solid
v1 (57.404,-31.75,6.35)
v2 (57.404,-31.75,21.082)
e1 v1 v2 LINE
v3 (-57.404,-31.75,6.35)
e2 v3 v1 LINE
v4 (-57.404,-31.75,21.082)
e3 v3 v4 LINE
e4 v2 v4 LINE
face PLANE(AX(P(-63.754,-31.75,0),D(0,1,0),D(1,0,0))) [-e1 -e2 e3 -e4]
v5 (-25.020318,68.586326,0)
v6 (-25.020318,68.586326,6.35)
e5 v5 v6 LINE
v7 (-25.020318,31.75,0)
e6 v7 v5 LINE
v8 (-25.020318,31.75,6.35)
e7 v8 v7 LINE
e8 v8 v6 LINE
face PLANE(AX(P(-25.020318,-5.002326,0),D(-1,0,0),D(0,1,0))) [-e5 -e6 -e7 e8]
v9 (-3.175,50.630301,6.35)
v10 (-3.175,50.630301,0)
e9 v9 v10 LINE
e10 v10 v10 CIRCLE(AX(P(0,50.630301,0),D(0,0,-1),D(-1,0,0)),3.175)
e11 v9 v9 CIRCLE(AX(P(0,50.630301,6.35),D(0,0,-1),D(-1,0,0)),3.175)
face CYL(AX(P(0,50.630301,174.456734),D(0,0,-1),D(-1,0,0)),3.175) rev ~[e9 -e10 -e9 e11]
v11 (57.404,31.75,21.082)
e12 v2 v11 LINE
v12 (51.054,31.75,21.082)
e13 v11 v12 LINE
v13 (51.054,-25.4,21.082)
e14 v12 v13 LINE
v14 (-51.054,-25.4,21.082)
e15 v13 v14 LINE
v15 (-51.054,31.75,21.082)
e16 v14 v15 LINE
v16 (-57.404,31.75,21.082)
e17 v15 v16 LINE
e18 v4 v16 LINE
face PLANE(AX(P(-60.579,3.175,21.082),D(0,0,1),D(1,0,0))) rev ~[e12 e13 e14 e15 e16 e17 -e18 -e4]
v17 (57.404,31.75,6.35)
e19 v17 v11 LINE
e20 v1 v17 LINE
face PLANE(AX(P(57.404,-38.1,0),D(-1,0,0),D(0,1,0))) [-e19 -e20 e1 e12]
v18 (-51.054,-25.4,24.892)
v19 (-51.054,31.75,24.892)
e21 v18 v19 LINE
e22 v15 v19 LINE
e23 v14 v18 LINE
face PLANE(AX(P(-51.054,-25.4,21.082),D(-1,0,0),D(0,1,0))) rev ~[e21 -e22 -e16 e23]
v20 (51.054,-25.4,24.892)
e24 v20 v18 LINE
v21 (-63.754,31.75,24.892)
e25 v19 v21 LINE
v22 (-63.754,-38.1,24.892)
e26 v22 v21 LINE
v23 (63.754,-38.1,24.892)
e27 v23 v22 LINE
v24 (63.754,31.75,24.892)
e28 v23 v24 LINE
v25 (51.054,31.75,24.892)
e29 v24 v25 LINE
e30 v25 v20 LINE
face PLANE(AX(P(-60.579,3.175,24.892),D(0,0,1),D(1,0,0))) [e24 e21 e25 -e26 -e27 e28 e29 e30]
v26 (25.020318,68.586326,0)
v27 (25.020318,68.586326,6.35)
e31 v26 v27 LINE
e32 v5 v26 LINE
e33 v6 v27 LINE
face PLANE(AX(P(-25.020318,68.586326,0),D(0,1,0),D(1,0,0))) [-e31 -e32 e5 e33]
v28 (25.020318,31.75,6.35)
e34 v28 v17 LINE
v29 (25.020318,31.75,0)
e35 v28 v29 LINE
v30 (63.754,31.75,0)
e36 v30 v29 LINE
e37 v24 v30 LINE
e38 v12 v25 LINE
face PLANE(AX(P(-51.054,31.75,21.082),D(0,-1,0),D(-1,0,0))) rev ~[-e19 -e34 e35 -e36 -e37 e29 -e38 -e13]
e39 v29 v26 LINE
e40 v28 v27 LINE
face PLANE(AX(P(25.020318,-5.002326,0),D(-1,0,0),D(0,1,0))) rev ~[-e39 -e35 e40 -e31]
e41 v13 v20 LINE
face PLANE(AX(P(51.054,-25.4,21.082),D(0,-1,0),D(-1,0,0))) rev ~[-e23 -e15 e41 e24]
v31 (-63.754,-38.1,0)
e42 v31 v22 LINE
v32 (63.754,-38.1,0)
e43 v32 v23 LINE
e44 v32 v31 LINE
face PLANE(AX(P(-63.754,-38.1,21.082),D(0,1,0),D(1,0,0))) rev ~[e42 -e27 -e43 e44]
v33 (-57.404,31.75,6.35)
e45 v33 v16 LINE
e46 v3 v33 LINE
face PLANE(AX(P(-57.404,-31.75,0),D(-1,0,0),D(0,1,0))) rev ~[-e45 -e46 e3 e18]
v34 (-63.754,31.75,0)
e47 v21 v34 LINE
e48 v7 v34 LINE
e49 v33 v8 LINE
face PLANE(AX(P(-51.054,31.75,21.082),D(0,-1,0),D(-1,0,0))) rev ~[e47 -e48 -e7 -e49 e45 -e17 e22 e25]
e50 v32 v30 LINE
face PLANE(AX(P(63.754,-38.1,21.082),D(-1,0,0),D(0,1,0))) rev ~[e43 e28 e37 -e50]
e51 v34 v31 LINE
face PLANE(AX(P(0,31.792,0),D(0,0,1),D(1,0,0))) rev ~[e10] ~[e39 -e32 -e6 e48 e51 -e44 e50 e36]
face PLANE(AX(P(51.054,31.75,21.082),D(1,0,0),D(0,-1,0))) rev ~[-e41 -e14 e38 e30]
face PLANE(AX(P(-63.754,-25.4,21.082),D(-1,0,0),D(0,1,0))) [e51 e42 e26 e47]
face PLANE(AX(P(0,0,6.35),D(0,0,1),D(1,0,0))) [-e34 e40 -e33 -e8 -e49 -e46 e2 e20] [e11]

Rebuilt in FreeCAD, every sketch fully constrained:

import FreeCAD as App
import Part
import Sketcher
from FreeCAD import Vector
Q = App.Units.Quantity


def add_polygon(sketch, points):
    """Adds a closed chain of lines whose ends are joined by coincident constraints."""
    first, n = sketch.GeometryCount, len(points)
    for a, b in zip(points, points[1:] + points[:1]):
        sketch.addGeometry(Part.LineSegment(App.Vector(*a, 0), App.Vector(*b, 0)), False)
    for i in range(n):
        sketch.addConstraint(Sketcher.Constraint("Coincident", first + i, 2, first + (i + 1) % n, 1))

doc = App.newDocument("Part")
body = doc.addObject("PartDesign::Body", "Body")

sketch1 = doc.addObject("Sketcher::SketchObject", "Sketch")
body.addObject(sketch1)
sketch1.AttachmentSupport = (doc.XY_Plane, [""])
sketch1.MapMode = "FlatFace"
add_polygon(sketch1, [(-57, 32), (-57, -32), (57, -32), (57, 32)])
sketch1.addConstraint([
    Sketcher.Constraint("Vertical", 0),
    Sketcher.Constraint("Horizontal", 1),
    Sketcher.Constraint("Vertical", 2),
    Sketcher.Constraint("Horizontal", 3),
    Sketcher.Constraint("Symmetric", 0, 2, 2, 2, -1, 1),
    Sketcher.Constraint("DistanceY", 0, 2, 0, 1, Q("2.5 in")),
    Sketcher.Constraint("DistanceX", 1, 1, 1, 2, Q("4.52 in")),
])
pad1 = doc.addObject("PartDesign::Pad", "Pad")
body.addObject(pad1)
pad1.Profile = sketch1
pad1.Length = Q("0.25 in")

sketch2 = doc.addObject("Sketcher::SketchObject", "Sketch001")
body.addObject(sketch2)
sketch2.AttachmentSupport = (doc.XY_Plane, [""])
sketch2.MapMode = "FlatFace"
add_polygon(sketch2, [(-64, 32), (-64, -32), (-57, -32), (-57, 32)])
sketch2.addConstraint([
    Sketcher.Constraint("Vertical", 0),
    Sketcher.Constraint("Horizontal", 1),
    Sketcher.Constraint("Vertical", 2),
    Sketcher.Constraint("Horizontal", 3),
    Sketcher.Constraint("DistanceY", 0, 2, 0, 1, Q("2.5 in")),
    Sketcher.Constraint("DistanceX", 1, 1, 1, 2, Q("0.25 in")),
    Sketcher.Constraint("DistanceX", 0, 2, -1, 1, Q("2.51 in")),
    Sketcher.Constraint("DistanceY", 0, 2, -1, 1, Q("1.25 in")),
])
pad2 = doc.addObject("PartDesign::Pad", "Pad001")
body.addObject(pad2)
pad2.Profile = sketch2
pad2.Length = Q("0.83 in")

sketch3 = doc.addObject("Sketcher::SketchObject", "Sketch002")
body.addObject(sketch3)
sketch3.AttachmentSupport = (doc.XY_Plane, [""])
sketch3.MapMode = "FlatFace"
add_polygon(sketch3, [(-64, -32), (-64, -38), (57, -38), (57, -32)])
sketch3.addConstraint([
    Sketcher.Constraint("Vertical", 0),
    Sketcher.Constraint("Horizontal", 1),
    Sketcher.Constraint("Vertical", 2),
    Sketcher.Constraint("Horizontal", 3),
    Sketcher.Constraint("DistanceX", 1, 1, 1, 2, Q("4.77 in")),
    Sketcher.Constraint("DistanceY", 0, 2, 0, 1, Q("0.25 in")),
    Sketcher.Constraint("DistanceY", 0, 2, -1, 1, Q("1.5 in")),
    Sketcher.Constraint("DistanceX", 0, 2, -1, 1, Q("2.51 in")),
])
pad3 = doc.addObject("PartDesign::Pad", "Pad002")
body.addObject(pad3)
pad3.Profile = sketch3
pad3.Length = Q("0.83 in")

sketch4 = doc.addObject("Sketcher::SketchObject", "Sketch003")
body.addObject(sketch4)
sketch4.AttachmentSupport = (doc.XY_Plane, [""])
sketch4.MapMode = "FlatFace"
add_polygon(sketch4, [(57, 32), (57, -38), (64, -38), (64, 32)])
sketch4.addConstraint([
    Sketcher.Constraint("Vertical", 0),
    Sketcher.Constraint("Horizontal", 1),
    Sketcher.Constraint("Vertical", 2),
    Sketcher.Constraint("Horizontal", 3),
    Sketcher.Constraint("DistanceX", 1, 1, 1, 2, Q("0.25 in")),
    Sketcher.Constraint("DistanceY", 0, 2, 0, 1, Q("2.75 in")),
    Sketcher.Constraint("DistanceY", 0, 2, -1, 1, Q("1.5 in")),
    Sketcher.Constraint("DistanceX", -1, 1, 0, 2, Q("2.26 in")),
])
pad4 = doc.addObject("PartDesign::Pad", "Pad003")
body.addObject(pad4)
pad4.Profile = sketch4
pad4.Length = Q("0.83 in")

sketch5 = doc.addObject("Sketcher::SketchObject", "Sketch004")
body.addObject(sketch5)
sketch5.AttachmentSupport = (doc.XY_Plane, [""])
sketch5.MapMode = "FlatFace"
sketch5.AttachmentOffset = App.Placement(Vector(0, 0, 0.83 * 25.4), App.Rotation())
add_polygon(sketch5, [(51, 32), (51, -38), (64, -38), (64, 32)])
sketch5.addConstraint([
    Sketcher.Constraint("Vertical", 0),
    Sketcher.Constraint("Horizontal", 1),
    Sketcher.Constraint("Vertical", 2),
    Sketcher.Constraint("Horizontal", 3),
    Sketcher.Constraint("DistanceX", 1, 1, 1, 2, Q("0.5 in")),
    Sketcher.Constraint("DistanceY", 0, 2, 0, 1, Q("2.75 in")),
    Sketcher.Constraint("DistanceY", 0, 2, -1, 1, Q("1.5 in")),
    Sketcher.Constraint("DistanceX", -1, 1, 0, 2, Q("2.01 in")),
])
pad5 = doc.addObject("PartDesign::Pad", "Pad004")
body.addObject(pad5)
pad5.Profile = sketch5
pad5.Length = Q("0.15 in")

sketch6 = doc.addObject("Sketcher::SketchObject", "Sketch005")
body.addObject(sketch6)
sketch6.AttachmentSupport = (doc.XY_Plane, [""])
sketch6.MapMode = "FlatFace"
sketch6.AttachmentOffset = App.Placement(Vector(0, 0, 0.83 * 25.4), App.Rotation())
add_polygon(sketch6, [(-64, -25), (-64, -38), (51, -38), (51, -25)])
sketch6.addConstraint([
    Sketcher.Constraint("Vertical", 0),
    Sketcher.Constraint("Horizontal", 1),
    Sketcher.Constraint("Vertical", 2),
    Sketcher.Constraint("Horizontal", 3),
    Sketcher.Constraint("DistanceY", 0, 2, 0, 1, Q("0.5 in")),
    Sketcher.Constraint("DistanceY", 2, 2, -1, 1, Q("1 in")),
    Sketcher.Constraint("DistanceX", 1, 1, 1, 2, Q("4.52 in")),
    Sketcher.Constraint("DistanceX", 0, 2, -1, 1, Q("2.51 in")),
])
pad6 = doc.addObject("PartDesign::Pad", "Pad005")
body.addObject(pad6)
pad6.Profile = sketch6
pad6.Length = Q("0.15 in")

sketch7 = doc.addObject("Sketcher::SketchObject", "Sketch006")
body.addObject(sketch7)
sketch7.AttachmentSupport = (doc.XY_Plane, [""])
sketch7.MapMode = "FlatFace"
sketch7.AttachmentOffset = App.Placement(Vector(0, 0, 0.83 * 25.4), App.Rotation())
add_polygon(sketch7, [(-64, 32), (-64, -25), (-51, -25), (-51, 32)])
sketch7.addConstraint([
    Sketcher.Constraint("Vertical", 0),
    Sketcher.Constraint("Horizontal", 1),
    Sketcher.Constraint("Vertical", 2),
    Sketcher.Constraint("Horizontal", 3),
    Sketcher.Constraint("DistanceX", 1, 1, 1, 2, Q("0.5 in")),
    Sketcher.Constraint("DistanceY", 0, 2, -1, 1, Q("1 in")),
    Sketcher.Constraint("DistanceY", 0, 2, 0, 1, Q("2.25 in")),
    Sketcher.Constraint("DistanceX", 0, 2, -1, 1, Q("2.51 in")),
])
pad7 = doc.addObject("PartDesign::Pad", "Pad006")
body.addObject(pad7)
pad7.Profile = sketch7
pad7.Length = Q("0.15 in")

sketch8 = doc.addObject("Sketcher::SketchObject", "Sketch007")
body.addObject(sketch8)
sketch8.AttachmentSupport = (doc.XY_Plane, [""])
sketch8.MapMode = "FlatFace"
add_polygon(sketch8, [(-25, 69), (-25, -5), (25, -5), (25, 69)])
sketch8.addConstraint([
    Sketcher.Constraint("Vertical", 0),
    Sketcher.Constraint("Horizontal", 1),
    Sketcher.Constraint("Vertical", 2),
    Sketcher.Constraint("Horizontal", 3),
    Sketcher.Constraint("DistanceX", 1, 1, 1, 2, 50.040636),
    Sketcher.Constraint("DistanceY", 0, 2, 0, 1, 73.588653),
    Sketcher.Constraint("DistanceX", 0, 2, -1, 1, 25.020318),
    Sketcher.Constraint("DistanceY", 0, 2, -1, 1, 5.002326),
])
pad8 = doc.addObject("PartDesign::Pad", "Pad007")
body.addObject(pad8)
pad8.Profile = sketch8
pad8.Length = Q("0.25 in")

sketch9 = doc.addObject("Sketcher::SketchObject", "Sketch008")
body.addObject(sketch9)
sketch9.AttachmentSupport = (doc.XY_Plane, [""])
sketch9.MapMode = "FlatFace"
sketch9.AttachmentOffset = App.Placement(Vector(0, 0, 0.25 * 25.4), App.Rotation())
sketch9.addGeometry(Part.Circle(Vector(0, 50.6, 0), Vector(0, 0, 1), 3.2), False)
sketch9.addConstraint([
    Sketcher.Constraint("PointOnObject", 0, 3, -2),
    Sketcher.Constraint("Diameter", 0, Q("0.25 in")),
    Sketcher.Constraint("DistanceY", -1, 1, 0, 3, 50.630301),
])
doc.recompute()
hole = doc.addObject("PartDesign::Hole", "Hole")
body.addObject(hole)
hole.Profile = sketch9
hole.ThreadType = "None"
hole.Diameter = Q("0.25 in")
hole.DepthType = "ThroughAll"

doc.recompute()
